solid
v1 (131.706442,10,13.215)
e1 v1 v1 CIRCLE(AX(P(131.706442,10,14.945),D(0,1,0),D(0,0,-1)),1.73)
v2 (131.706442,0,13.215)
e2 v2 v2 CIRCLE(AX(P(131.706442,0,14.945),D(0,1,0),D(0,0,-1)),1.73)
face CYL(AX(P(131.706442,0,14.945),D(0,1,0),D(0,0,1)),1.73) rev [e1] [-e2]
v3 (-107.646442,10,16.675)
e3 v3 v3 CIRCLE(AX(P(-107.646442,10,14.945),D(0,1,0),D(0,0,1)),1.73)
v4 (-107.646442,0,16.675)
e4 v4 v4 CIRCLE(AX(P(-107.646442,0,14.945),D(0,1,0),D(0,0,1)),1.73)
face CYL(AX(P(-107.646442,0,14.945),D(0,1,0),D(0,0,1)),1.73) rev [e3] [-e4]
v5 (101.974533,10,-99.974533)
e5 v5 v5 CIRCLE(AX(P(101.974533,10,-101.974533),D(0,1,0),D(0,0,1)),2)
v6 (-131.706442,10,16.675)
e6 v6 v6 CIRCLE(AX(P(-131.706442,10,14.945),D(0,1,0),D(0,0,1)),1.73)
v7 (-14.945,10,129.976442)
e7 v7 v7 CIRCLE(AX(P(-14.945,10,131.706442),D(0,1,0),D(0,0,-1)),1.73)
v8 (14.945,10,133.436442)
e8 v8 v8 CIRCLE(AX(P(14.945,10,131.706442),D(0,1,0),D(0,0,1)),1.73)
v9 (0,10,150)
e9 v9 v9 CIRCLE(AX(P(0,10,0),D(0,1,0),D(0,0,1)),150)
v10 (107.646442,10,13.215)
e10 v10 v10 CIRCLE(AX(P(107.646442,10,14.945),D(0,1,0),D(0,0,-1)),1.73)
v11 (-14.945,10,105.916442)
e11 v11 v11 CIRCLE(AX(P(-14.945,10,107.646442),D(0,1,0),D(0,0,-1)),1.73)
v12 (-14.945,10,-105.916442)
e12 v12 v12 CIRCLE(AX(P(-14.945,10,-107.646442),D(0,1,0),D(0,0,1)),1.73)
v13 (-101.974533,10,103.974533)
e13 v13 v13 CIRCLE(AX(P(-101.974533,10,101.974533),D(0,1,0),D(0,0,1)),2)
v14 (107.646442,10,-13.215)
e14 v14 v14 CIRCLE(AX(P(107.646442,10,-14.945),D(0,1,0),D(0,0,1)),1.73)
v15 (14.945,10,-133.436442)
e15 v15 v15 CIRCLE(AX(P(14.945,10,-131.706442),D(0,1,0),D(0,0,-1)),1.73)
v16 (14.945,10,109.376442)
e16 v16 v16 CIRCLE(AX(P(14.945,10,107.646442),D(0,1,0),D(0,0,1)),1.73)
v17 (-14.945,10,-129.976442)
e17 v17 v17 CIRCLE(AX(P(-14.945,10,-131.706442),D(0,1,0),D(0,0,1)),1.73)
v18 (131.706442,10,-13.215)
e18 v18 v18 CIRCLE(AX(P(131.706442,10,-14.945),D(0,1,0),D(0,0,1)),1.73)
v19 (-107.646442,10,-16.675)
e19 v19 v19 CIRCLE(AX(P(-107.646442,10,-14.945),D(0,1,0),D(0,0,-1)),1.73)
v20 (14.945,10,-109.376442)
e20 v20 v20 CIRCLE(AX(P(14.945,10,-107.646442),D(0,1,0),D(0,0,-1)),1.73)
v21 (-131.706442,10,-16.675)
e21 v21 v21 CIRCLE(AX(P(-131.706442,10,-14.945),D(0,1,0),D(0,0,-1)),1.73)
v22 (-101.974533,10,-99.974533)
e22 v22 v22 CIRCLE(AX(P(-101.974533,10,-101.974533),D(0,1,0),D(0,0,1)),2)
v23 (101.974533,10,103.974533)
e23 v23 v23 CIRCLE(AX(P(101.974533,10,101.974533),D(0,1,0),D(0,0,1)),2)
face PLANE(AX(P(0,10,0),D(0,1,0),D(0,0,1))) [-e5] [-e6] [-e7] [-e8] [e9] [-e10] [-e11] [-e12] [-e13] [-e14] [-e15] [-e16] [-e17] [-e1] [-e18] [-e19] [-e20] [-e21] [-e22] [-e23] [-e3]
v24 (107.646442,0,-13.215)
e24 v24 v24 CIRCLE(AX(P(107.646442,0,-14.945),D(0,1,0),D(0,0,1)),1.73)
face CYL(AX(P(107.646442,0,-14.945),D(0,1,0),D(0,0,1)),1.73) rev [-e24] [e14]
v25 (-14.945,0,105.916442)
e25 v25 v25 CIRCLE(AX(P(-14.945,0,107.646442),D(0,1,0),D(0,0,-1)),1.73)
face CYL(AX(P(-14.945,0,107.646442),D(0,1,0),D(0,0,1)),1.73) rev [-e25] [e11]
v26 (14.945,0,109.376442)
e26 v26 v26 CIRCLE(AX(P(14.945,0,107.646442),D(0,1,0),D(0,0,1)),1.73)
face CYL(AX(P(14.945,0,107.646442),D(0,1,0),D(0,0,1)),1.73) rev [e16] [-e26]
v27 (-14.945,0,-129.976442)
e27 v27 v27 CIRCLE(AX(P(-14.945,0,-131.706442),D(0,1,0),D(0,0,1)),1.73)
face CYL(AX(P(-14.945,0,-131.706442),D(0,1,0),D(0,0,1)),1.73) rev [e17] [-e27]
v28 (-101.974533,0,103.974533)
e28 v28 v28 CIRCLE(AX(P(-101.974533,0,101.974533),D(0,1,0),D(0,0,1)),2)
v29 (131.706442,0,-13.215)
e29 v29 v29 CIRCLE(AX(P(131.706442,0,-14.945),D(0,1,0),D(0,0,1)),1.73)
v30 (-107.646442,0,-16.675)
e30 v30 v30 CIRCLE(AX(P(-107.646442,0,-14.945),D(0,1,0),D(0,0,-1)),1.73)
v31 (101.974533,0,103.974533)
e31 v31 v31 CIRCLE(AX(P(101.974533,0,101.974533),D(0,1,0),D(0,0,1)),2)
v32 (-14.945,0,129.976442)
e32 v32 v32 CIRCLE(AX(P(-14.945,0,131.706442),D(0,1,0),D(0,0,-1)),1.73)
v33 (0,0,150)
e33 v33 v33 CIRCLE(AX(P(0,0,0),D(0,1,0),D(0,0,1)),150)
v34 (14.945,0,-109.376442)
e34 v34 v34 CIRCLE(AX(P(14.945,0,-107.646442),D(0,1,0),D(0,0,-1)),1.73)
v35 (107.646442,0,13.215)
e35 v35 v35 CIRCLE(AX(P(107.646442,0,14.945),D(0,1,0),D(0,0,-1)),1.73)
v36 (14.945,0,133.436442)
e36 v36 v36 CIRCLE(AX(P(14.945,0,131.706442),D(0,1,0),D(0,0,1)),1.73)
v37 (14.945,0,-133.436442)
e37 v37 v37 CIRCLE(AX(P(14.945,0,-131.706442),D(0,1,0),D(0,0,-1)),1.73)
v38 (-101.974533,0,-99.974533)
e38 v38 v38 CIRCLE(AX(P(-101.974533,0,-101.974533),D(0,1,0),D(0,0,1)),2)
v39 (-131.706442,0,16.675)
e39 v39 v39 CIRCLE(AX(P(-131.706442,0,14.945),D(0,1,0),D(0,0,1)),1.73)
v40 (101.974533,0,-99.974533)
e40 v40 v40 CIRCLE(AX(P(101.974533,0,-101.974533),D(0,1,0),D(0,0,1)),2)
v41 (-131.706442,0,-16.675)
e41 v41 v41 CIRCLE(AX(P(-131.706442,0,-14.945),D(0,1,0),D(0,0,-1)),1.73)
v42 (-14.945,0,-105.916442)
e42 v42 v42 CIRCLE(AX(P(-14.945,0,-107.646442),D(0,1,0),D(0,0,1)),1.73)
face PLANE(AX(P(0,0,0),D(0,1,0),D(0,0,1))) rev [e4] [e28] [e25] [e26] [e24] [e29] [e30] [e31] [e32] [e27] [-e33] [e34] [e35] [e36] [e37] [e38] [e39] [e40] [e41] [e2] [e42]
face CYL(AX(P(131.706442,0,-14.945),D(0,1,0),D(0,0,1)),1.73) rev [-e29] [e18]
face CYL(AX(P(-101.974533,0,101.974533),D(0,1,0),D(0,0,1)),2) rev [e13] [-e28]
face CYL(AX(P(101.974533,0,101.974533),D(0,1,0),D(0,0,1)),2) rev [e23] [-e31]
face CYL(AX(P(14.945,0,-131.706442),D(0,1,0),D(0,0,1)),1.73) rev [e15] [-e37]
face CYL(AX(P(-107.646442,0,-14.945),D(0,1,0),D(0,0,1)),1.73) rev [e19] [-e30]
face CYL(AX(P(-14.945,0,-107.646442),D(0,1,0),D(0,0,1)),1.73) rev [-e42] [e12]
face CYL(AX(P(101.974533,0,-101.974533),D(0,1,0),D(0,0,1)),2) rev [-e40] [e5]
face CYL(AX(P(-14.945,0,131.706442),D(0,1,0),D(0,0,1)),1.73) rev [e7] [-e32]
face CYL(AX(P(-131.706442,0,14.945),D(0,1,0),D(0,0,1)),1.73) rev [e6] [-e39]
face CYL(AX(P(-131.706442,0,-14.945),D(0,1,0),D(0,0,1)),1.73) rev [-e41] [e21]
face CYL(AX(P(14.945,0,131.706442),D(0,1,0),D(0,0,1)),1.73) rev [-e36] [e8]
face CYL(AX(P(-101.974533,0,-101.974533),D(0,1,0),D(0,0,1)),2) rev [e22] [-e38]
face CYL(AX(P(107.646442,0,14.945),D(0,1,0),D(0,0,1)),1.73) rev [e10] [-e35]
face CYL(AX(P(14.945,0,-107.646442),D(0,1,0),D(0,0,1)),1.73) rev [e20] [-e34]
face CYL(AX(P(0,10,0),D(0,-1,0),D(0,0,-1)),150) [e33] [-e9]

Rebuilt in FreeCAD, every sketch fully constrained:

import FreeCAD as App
import Part
import Sketcher

V = App.Vector

doc = App.newDocument("Part")
body = doc.addObject("PartDesign::Body", "Body")

# Sketch on XZ plane
sketch1 = body.newObject("Sketcher::SketchObject", "Sketch")
sketch1.AttachmentSupport = (doc.getObject("XZ_Plane"), [""])
sketch1.MapMode = "FlatFace"
sketch1.addGeometry(Part.Circle(V(0, 0, 0), V(0, 0, 1), 150), False)
sketch1.addConstraint([
    Sketcher.Constraint("Coincident", 0, 3, -1, 1),
    Sketcher.Constraint("Diameter", 0, 300.0),
])
pad1 = body.newObject("PartDesign::Pad", "Pad")
pad1.Profile = sketch1
pad1.Length = 10
pad1.Reversed = True

# Sketch on XZ plane
sketch2 = body.newObject("Sketcher::SketchObject", "Sketch001")
sketch2.AttachmentSupport = (doc.getObject("XZ_Plane"), [""])
sketch2.MapMode = "FlatFace"
sketch2.AttachmentOffset = App.Placement(V(0, 0, -10), App.Rotation())
sketch2.addGeometry([
    Part.Circle(V(-14.9, -131.7, 0), V(0, 0, 1), 1.7),  # 0
    Part.Circle(V(-14.9, -107.6, 0), V(0, 0, 1), 1.7),  # 1
    Part.Circle(V(14.9, -107.6, 0), V(0, 0, 1), 1.7),  # 2
    Part.Circle(V(14.9, -131.7, 0), V(0, 0, 1), 1.7),  # 3
    Part.Circle(V(131.7, -14.9, 0), V(0, 0, 1), 1.7),  # 4
    Part.Circle(V(131.7, 14.9, 0), V(0, 0, 1), 1.7),  # 5
    Part.Circle(V(107.6, 14.9, 0), V(0, 0, 1), 1.7),  # 6
    Part.Circle(V(107.6, -14.9, 0), V(0, 0, 1), 1.7),  # 7
    Part.Circle(V(14.9, 131.7, 0), V(0, 0, 1), 1.7),  # 8
    Part.Circle(V(-14.9, 131.7, 0), V(0, 0, 1), 1.7),  # 9
    Part.Circle(V(-14.9, 107.6, 0), V(0, 0, 1), 1.7),  # 10
    Part.Circle(V(14.9, 107.6, 0), V(0, 0, 1), 1.7),  # 11
    Part.Circle(V(-131.7, 14.9, 0), V(0, 0, 1), 1.7),  # 12
    Part.Circle(V(-131.7, -14.9, 0), V(0, 0, 1), 1.7),  # 13
    Part.Circle(V(-107.6, -14.9, 0), V(0, 0, 1), 1.7),  # 14
    Part.Circle(V(-107.6, 14.9, 0), V(0, 0, 1), 1.7),  # 15
    Part.Circle(V(102, -102, 0), V(0, 0, 1), 2),  # 16
    Part.Circle(V(102, 102, 0), V(0, 0, 1), 2),  # 17
    Part.Circle(V(-102, 102, 0), V(0, 0, 1), 2),  # 18
    Part.Circle(V(-102, -102, 0), V(0, 0, 1), 2),  # 19
], False)
sketch2.addConstraint([
    Sketcher.Constraint("Equal", 0, 1),
    Sketcher.Constraint("Equal", 1, 2),
    Sketcher.Constraint("Equal", 2, 3),
    Sketcher.Constraint("Equal", 3, 4),
    Sketcher.Constraint("Equal", 4, 5),
    Sketcher.Constraint("Equal", 5, 6),
    Sketcher.Constraint("Equal", 6, 7),
    Sketcher.Constraint("Equal", 7, 8),
    Sketcher.Constraint("Equal", 8, 9),
    Sketcher.Constraint("Equal", 9, 10),
    Sketcher.Constraint("Equal", 10, 11),
    Sketcher.Constraint("Equal", 11, 12),
    Sketcher.Constraint("Equal", 12, 13),
    Sketcher.Constraint("Equal", 13, 14),
    Sketcher.Constraint("Equal", 14, 15),
    Sketcher.Constraint("Equal", 16, 17),
    Sketcher.Constraint("Equal", 17, 18),
    Sketcher.Constraint("Equal", 18, 19),
    Sketcher.Constraint("Symmetric", 0, 3, 8, 3, -1, 1),
    Sketcher.Constraint("Symmetric", 3, 3, 9, 3, -1, 1),
    Sketcher.Constraint("Symmetric", 2, 3, 10, 3, -1, 1),
    Sketcher.Constraint("Symmetric", 1, 3, 11, 3, -1, 1),
    Sketcher.Constraint("Symmetric", 4, 3, 12, 3, -1, 1),
    Sketcher.Constraint("Symmetric", 5, 3, 13, 3, -1, 1),
    Sketcher.Constraint("Symmetric", 6, 3, 14, 3, -1, 1),
    Sketcher.Constraint("Symmetric", 7, 3, 15, 3, -1, 1),
    Sketcher.Constraint("Symmetric", 16, 3, 18, 3, -1, 1),
    Sketcher.Constraint("Symmetric", 17, 3, 19, 3, -1, 1),
    Sketcher.Constraint("Symmetric", 1, 3, 2, 3, -2),
    Sketcher.Constraint("Symmetric", 0, 3, 3, 3, -2),
    Sketcher.Constraint("Symmetric", 5, 3, 12, 3, -2),
    Sketcher.Constraint("Symmetric", 7, 3, 14, 3, -2),
    Sketcher.Constraint("Symmetric", 17, 3, 18, 3, -2),
    Sketcher.Constraint("Horizontal", 5, 3, 6, 3),
    Sketcher.Constraint("Vertical", 0, 3, 1, 3),
    Sketcher.Constraint("Diameter", 16, 4.0),
    Sketcher.Constraint("Diameter", 0, 3.46),
    Sketcher.Constraint("DistanceY", 0, 3, 1, 3, 24.06),
    Sketcher.Constraint("DistanceX", 1, 3, 2, 3, 29.89),
    Sketcher.Constraint("DistanceY", 4, 3, 5, 3, 29.89),
    Sketcher.Constraint("DistanceX", 6, 3, 5, 3, 24.06),
    Sketcher.Constraint("DistanceY", 2, 3, 16, 3, 5.67191),
    Sketcher.Constraint("DistanceX", 16, 3, 7, 3, 5.67191),
    Sketcher.Constraint("DistanceY", 0, 3, -1, 1, 131.706442),
    Sketcher.Constraint("DistanceX", -1, 1, 4, 3, 131.706442),
])
pocket1 = body.newObject("PartDesign::Pocket", "Pocket")
pocket1.Profile = sketch2
pocket1.Length = 10
pocket1.Reversed = True

doc.recompute()
